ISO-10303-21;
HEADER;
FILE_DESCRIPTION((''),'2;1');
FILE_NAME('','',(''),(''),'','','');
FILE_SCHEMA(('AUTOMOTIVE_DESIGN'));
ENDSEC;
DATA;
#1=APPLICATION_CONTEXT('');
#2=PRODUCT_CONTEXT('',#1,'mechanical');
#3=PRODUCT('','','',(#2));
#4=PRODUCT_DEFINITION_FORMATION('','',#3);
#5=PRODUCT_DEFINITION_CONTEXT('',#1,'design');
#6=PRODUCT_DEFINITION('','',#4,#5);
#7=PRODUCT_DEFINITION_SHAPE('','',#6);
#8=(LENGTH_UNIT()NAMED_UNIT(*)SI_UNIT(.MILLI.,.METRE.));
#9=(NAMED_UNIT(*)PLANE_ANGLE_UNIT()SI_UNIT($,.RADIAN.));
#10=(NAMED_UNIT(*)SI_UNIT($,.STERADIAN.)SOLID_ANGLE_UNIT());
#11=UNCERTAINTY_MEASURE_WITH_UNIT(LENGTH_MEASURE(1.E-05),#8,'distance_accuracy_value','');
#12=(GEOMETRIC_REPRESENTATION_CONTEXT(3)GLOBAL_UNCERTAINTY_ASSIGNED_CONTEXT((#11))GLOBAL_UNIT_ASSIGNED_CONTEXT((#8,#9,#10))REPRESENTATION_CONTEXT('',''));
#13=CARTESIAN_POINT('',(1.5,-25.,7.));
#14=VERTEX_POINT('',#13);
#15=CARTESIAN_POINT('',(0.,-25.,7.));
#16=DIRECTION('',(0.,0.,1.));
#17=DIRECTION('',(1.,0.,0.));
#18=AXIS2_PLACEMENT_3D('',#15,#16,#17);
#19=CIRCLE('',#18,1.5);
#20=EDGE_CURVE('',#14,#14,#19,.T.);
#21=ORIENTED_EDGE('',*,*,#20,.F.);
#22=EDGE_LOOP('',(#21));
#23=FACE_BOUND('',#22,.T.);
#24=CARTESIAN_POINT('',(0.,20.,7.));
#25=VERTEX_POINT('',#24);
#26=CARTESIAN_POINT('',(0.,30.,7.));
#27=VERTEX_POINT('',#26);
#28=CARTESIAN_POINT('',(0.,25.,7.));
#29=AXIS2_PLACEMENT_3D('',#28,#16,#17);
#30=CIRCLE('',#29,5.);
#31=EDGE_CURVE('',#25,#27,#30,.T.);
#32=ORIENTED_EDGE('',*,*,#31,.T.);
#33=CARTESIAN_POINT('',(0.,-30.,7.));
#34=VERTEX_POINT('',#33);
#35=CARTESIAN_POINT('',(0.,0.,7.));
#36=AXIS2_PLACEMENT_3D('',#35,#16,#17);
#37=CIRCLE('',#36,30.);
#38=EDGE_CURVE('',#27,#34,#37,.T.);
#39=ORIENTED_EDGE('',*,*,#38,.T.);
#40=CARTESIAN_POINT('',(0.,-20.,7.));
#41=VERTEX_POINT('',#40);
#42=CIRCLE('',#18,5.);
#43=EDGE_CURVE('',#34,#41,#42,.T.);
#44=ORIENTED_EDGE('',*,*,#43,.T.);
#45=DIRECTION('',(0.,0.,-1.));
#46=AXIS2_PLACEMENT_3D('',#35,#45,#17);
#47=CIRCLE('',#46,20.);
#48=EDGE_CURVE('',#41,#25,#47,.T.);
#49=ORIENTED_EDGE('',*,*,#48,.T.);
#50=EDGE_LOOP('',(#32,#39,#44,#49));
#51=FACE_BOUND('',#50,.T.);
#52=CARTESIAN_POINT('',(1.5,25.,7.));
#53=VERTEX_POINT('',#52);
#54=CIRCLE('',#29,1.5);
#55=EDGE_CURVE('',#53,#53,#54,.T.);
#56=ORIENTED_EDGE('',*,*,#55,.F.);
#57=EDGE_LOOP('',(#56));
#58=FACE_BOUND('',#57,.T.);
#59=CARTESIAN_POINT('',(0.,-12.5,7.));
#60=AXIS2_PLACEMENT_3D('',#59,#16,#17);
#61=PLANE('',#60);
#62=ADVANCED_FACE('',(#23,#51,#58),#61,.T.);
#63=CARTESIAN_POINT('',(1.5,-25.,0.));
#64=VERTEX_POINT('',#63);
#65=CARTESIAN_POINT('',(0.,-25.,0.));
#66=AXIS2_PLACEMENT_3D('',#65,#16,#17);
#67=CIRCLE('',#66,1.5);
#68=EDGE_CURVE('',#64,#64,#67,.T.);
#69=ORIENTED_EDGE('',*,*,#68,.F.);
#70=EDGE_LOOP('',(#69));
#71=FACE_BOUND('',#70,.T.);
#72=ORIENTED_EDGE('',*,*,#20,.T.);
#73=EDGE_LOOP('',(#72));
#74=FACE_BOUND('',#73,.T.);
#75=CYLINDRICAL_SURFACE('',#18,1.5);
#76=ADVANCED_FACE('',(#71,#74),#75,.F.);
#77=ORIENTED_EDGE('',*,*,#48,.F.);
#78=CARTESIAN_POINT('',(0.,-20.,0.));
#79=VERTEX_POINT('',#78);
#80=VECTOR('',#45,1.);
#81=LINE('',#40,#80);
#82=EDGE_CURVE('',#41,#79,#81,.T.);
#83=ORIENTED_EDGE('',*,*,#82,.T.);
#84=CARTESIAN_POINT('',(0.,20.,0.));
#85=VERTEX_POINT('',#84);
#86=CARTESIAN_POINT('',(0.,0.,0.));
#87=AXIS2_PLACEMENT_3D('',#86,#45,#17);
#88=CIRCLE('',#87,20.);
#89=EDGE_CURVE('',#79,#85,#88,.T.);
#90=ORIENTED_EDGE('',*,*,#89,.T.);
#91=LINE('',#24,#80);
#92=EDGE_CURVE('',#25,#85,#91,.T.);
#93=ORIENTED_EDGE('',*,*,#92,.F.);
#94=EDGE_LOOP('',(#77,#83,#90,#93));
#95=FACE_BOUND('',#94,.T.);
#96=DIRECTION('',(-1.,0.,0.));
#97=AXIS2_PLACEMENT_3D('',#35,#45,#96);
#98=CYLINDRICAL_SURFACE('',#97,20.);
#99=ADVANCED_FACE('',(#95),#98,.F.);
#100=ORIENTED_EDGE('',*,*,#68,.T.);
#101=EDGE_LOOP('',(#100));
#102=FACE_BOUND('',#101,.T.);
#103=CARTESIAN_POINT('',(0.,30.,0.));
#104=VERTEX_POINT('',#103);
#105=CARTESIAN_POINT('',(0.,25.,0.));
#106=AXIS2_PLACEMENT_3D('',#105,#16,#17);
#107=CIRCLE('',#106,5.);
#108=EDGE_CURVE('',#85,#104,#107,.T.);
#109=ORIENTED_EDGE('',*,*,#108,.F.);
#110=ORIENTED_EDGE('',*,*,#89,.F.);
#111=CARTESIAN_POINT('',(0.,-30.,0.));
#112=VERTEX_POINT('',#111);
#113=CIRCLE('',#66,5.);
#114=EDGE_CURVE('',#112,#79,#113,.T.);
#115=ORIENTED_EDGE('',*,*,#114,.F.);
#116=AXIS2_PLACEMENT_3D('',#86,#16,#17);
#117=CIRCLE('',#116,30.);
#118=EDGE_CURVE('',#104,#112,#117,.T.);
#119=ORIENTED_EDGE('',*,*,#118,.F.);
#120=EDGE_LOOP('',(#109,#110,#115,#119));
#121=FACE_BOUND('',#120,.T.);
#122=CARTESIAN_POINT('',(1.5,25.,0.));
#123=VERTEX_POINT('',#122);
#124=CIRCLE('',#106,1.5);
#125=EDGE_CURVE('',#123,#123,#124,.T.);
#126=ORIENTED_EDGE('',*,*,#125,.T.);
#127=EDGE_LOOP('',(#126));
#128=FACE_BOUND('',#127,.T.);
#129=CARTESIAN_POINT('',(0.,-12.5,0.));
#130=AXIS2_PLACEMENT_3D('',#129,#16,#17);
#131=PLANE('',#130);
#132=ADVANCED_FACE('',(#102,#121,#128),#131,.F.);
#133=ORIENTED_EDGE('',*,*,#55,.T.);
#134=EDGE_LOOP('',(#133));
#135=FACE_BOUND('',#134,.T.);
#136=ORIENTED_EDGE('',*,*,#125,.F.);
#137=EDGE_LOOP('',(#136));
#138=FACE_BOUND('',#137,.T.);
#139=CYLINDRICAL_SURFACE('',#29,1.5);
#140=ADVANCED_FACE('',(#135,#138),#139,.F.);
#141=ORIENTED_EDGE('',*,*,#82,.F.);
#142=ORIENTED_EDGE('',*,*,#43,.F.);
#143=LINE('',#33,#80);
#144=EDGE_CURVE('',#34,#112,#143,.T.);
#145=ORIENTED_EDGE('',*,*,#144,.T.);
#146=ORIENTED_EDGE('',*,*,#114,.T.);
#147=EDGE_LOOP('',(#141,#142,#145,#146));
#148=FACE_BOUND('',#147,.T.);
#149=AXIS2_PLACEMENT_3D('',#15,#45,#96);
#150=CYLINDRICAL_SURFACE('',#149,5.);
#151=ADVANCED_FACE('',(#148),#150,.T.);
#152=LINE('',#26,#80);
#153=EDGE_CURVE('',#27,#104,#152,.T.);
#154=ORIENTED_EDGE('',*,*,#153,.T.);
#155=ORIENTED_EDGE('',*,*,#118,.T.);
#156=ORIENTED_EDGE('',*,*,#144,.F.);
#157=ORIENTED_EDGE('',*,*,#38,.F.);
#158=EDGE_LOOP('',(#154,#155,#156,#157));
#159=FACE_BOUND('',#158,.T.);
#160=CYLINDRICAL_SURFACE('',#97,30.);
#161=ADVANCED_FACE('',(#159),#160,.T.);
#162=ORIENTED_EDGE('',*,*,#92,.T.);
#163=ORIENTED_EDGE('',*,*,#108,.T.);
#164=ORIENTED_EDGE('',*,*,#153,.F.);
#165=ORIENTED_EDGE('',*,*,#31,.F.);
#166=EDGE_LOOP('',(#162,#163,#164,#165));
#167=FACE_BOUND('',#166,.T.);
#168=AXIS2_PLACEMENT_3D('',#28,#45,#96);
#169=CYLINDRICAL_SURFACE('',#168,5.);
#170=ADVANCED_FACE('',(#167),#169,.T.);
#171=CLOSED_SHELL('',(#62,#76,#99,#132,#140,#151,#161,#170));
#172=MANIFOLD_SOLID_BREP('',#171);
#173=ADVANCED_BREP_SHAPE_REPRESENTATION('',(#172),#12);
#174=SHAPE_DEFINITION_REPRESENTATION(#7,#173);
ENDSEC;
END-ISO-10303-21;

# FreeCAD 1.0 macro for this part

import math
import FreeCAD as App
import Part
import Sketcher
Q = App.Units.Quantity

doc = App.newDocument("Part")
body = doc.addObject("PartDesign::Body", "Body")

# Sketch on XY plane
sketch1 = body.newObject("Sketcher::SketchObject", "Sketch")
sketch1.AttachmentSupport = (doc.getObject("XY_Plane"), [""])
sketch1.MapMode = "FlatFace"
sketch1.addGeometry([
    Part.ArcOfCircle(Part.Circle(App.Vector(0, 0, 0), App.Vector(0, 0, 1), 30), math.radians(90), math.radians(270)),
    Part.ArcOfCircle(Part.Circle(App.Vector(0, -25, 0), App.Vector(0, 0, 1), 5), math.radians(-90), math.radians(90)),
    Part.ArcOfCircle(Part.Circle(App.Vector(0, 0, 0), App.Vector(0, 0, 1), 20), math.radians(90), math.radians(270)),
    Part.ArcOfCircle(Part.Circle(App.Vector(0, 25, 0), App.Vector(0, 0, 1), 5), math.radians(-90), math.radians(90)),
], False)
sketch1.addConstraint([
    Sketcher.Constraint("Tangent", 0, 2, 1, 1),
    Sketcher.Constraint("Tangent", 1, 2, 2, 2),
    Sketcher.Constraint("Tangent", 2, 1, 3, 1),
    Sketcher.Constraint("Tangent", 3, 2, 0, 1),
    Sketcher.Constraint("Coincident", 0, 3, -1, 1),
    Sketcher.Constraint("Coincident", 2, 3, -1, 1),
    Sketcher.Constraint("PointOnObject", 1, 3, -2),
    Sketcher.Constraint("PointOnObject", 3, 3, -2),
    Sketcher.Constraint("Radius", 0, Q("30 mm")),
    Sketcher.Constraint("Radius", 1, Q("5 mm")),
])
pad1 = body.newObject("PartDesign::Pad", "Pad")
pad1.Profile = sketch1
pad1.Length = 7

# Sketch on XY plane
sketch2 = body.newObject("Sketcher::SketchObject", "Sketch001")
sketch2.AttachmentSupport = (doc.getObject("XY_Plane"), [""])
sketch2.MapMode = "FlatFace"
sketch2.AttachmentOffset = App.Placement(App.Vector(0, 0, 7), App.Rotation())
sketch2.addGeometry([
    Part.Circle(App.Vector(0, 25, 0), App.Vector(0, 0, 1), 1.5),
    Part.Circle(App.Vector(0, -25, 0), App.Vector(0, 0, 1), 1.5),
], False)
sketch2.addConstraint([
    Sketcher.Constraint("Equal", 0, 1),
    Sketcher.Constraint("Symmetric", 0, 3, 1, 3, -1, 1),
    Sketcher.Constraint("PointOnObject", 0, 3, -2),
    Sketcher.Constraint("Diameter", 0, Q("3 mm")),
    Sketcher.Constraint("DistanceY", -1, 1, 0, 3, Q("25 mm")),
])
doc.recompute()
hole = body.newObject("PartDesign::Hole", "Hole")
hole.Profile = sketch2
hole.ThreadType = "None"
hole.Diameter = 3
hole.DepthType = "ThroughAll"

doc.recompute()
